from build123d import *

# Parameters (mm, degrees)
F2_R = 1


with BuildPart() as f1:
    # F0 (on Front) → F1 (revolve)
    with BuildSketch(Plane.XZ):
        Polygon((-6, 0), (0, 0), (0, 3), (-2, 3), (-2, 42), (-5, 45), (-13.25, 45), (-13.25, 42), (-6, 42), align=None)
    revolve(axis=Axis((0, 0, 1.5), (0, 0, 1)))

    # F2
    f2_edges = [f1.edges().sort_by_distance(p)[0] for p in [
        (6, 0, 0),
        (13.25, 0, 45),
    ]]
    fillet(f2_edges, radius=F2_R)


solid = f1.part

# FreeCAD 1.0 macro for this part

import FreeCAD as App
import Part
import Sketcher

V = App.Vector
Q = App.Units.Quantity


def edges_at(feature, points):
    """Names of the edges that pass closest to the given points."""
    edges = feature.Shape.Edges
    near = lambda p: min(range(len(edges)), key=lambda i: edges[i].distToShape(Part.Vertex(*p))[0])
    return sorted({f"Edge{near(p) + 1}" for p in points})

doc = App.newDocument("Part")
body = doc.addObject("PartDesign::Body", "Body")

sketch1 = doc.addObject("Sketcher::SketchObject", "Sketch")
body.addObject(sketch1)
sketch1.AttachmentSupport = (doc.XZ_Plane, [""])
sketch1.MapMode = "FlatFace"
sketch1.addGeometry([
    Part.LineSegment(V(-6, 0, 0), V(0, 0, 0)),
    Part.LineSegment(V(0, 0, 0), V(0, 3, 0)),
    Part.LineSegment(V(0, 3, 0), V(-2, 3, 0)),
    Part.LineSegment(V(-2, 3, 0), V(-2, 42, 0)),
    Part.LineSegment(V(-2, 42, 0), V(-5, 45, 0)),
    Part.LineSegment(V(-5, 45, 0), V(-13.25, 45, 0)),
    Part.LineSegment(V(-13.25, 45, 0), V(-13.25, 42, 0)),
    Part.LineSegment(V(-13.25, 42, 0), V(-6, 42, 0)),
    Part.LineSegment(V(-6, 42, 0), V(-6, 0, 0)),
], False)
sketch1.addConstraint([
    Sketcher.Constraint("Coincident", 0, 2, 1, 1),
    Sketcher.Constraint("Coincident", 1, 2, 2, 1),
    Sketcher.Constraint("Coincident", 2, 2, 3, 1),
    Sketcher.Constraint("Coincident", 3, 2, 4, 1),
    Sketcher.Constraint("Coincident", 4, 2, 5, 1),
    Sketcher.Constraint("Coincident", 5, 2, 6, 1),
    Sketcher.Constraint("Coincident", 6, 2, 7, 1),
    Sketcher.Constraint("Coincident", 7, 2, 8, 1),
    Sketcher.Constraint("Coincident", 8, 2, 0, 1),
    Sketcher.Constraint("Horizontal", 0),
    Sketcher.Constraint("Vertical", 1),
    Sketcher.Constraint("Horizontal", 2),
    Sketcher.Constraint("Vertical", 3),
    Sketcher.Constraint("Horizontal", 5),
    Sketcher.Constraint("Vertical", 6),
    Sketcher.Constraint("Horizontal", 7),
    Sketcher.Constraint("Vertical", 8),
    Sketcher.Constraint("Coincident", 0, 2, -1, 1),
    Sketcher.Constraint("Horizontal", 3, 2, 6, 2),
    Sketcher.Constraint("Equal", 1, 6),
    Sketcher.Constraint("DistanceX", 0, 1, 0, 2, 6.0),
    Sketcher.Constraint("DistanceX", 2, 2, 2, 1, 2.0),
    Sketcher.Constraint("DistanceY", 1, 1, 1, 2, 3.0),
    Sketcher.Constraint("DistanceY", 3, 1, 3, 2, 39.0),
    Sketcher.Constraint("Angle", 4, Q("135 deg")),
    Sketcher.Constraint("DistanceX", 5, 2, 5, 1, 8.25),
])
revolution = doc.addObject("PartDesign::Revolution", "Revolution")
body.addObject(revolution)
revolution.Profile = sketch1
revolution.ReferenceAxis = (sketch1, ["V_Axis"])
revolution.Angle = 360
doc.recompute()

fillet = doc.addObject("PartDesign::Fillet", "Fillet")
body.addObject(fillet)
fillet.Base = (revolution, edges_at(revolution, [(6, 0, 0), (13.25, 0, 45)]))
fillet.Radius = 1

doc.recompute()
